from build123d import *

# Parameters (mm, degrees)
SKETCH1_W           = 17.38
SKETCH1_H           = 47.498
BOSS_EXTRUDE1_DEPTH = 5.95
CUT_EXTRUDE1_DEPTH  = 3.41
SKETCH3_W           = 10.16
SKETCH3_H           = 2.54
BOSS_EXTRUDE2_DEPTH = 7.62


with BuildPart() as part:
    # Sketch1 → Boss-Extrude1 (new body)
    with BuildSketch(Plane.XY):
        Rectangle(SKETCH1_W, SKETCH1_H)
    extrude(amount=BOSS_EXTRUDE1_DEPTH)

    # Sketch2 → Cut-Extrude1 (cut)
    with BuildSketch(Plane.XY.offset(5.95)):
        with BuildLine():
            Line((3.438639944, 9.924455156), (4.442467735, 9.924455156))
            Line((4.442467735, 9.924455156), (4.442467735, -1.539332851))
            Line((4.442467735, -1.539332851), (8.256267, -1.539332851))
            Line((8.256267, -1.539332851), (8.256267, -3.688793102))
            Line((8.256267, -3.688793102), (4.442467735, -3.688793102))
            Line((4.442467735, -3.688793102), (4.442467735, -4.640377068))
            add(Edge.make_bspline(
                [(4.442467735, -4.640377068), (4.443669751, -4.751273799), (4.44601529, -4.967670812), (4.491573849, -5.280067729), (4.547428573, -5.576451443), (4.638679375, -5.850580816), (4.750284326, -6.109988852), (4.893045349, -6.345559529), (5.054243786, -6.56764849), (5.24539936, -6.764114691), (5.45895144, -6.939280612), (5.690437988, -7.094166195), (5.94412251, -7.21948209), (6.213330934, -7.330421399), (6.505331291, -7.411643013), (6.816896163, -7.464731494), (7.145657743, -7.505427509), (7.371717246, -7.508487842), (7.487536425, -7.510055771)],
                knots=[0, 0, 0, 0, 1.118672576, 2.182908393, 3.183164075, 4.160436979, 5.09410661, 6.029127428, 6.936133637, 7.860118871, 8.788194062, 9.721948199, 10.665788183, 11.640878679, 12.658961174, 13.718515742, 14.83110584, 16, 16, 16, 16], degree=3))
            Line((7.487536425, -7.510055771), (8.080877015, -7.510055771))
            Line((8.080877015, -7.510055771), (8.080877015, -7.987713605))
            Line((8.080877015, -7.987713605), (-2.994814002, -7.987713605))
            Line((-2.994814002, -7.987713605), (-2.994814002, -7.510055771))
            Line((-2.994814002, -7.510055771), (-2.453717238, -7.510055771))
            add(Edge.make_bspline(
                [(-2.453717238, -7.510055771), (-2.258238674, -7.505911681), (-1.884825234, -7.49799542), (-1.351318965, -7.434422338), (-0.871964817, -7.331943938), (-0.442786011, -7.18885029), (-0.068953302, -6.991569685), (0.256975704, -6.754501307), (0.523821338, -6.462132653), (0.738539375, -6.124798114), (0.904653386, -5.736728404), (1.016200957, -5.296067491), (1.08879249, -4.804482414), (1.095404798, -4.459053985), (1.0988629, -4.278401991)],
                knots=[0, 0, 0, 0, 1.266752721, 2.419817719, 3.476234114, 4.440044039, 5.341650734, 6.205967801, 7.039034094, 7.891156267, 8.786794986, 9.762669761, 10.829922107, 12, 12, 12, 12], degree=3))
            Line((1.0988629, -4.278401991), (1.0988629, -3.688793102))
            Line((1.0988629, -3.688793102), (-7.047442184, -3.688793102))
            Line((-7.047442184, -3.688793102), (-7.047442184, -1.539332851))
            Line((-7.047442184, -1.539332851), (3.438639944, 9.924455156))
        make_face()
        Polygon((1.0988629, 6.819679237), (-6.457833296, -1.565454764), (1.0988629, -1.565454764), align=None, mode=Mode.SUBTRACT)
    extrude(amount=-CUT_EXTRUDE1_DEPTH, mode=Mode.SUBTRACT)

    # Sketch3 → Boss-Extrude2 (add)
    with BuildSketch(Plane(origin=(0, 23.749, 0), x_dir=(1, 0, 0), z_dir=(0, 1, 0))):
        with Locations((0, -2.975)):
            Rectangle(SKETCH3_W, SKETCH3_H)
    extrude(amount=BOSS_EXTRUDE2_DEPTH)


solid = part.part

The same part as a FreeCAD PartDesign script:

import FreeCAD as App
import Part
import Sketcher
from FreeCAD import Vector
Q = App.Units.Quantity

doc = App.newDocument("Part")
params = doc.addObject("Spreadsheet::Sheet", "Params")
for row, (alias, value) in enumerate([
    ("sketch1_height", "1.87 in"),
    ("pad1_length", "5.95 mm"),
    ("pocket1_length", "3.41 mm"),
    ("sketch3_width", "0.4 in"),
    ("sketch3_height", "0.1 in"),
    ("pad2_length", "0.3 in"),
], start=1):
    params.set(f"A{row}", alias)
    params.set(f"B{row}", "=" + value)
    params.setAlias(f"B{row}", alias)

body = doc.addObject("PartDesign::Body", "Body")

sketch1 = body.newObject("Sketcher::SketchObject", "Sketch")
sketch1.AttachmentSupport = (doc.getObject("XY_Plane"), [""])
sketch1.MapMode = "FlatFace"
sketch1.addGeometry(Part.LineSegment(Vector(-8.69, 23.749, 0), Vector(-8.69, -23.749, 0)), False)
sketch1.addGeometry(Part.LineSegment(Vector(-8.69, -23.749, 0), Vector(8.69, -23.749, 0)), False)
sketch1.addGeometry(Part.LineSegment(Vector(8.69, -23.749, 0), Vector(8.69, 23.749, 0)), False)
sketch1.addGeometry(Part.LineSegment(Vector(8.69, 23.749, 0), Vector(-8.69, 23.749, 0)), False)
sketch1.addConstraint(Sketcher.Constraint("Coincident", 0, 2, 1, 1))
sketch1.addConstraint(Sketcher.Constraint("Coincident", 1, 2, 2, 1))
sketch1.addConstraint(Sketcher.Constraint("Coincident", 2, 2, 3, 1))
sketch1.addConstraint(Sketcher.Constraint("Coincident", 3, 2, 0, 1))
sketch1.addConstraint(Sketcher.Constraint("Vertical", 0))
sketch1.addConstraint(Sketcher.Constraint("Horizontal", 1))
sketch1.addConstraint(Sketcher.Constraint("Vertical", 2))
sketch1.addConstraint(Sketcher.Constraint("Horizontal", 3))
sketch1.addConstraint(Sketcher.Constraint("Symmetric", 0, 2, 2, 2, -1, 1))
sketch1.addConstraint(Sketcher.Constraint("DistanceY", 0, 2, 0, 1, Q("1.87 in")))
sketch1.addConstraint(Sketcher.Constraint("DistanceX", 1, 1, 1, 2, Q("17.38 mm")))
sketch1.setExpression("Constraints[9]", "Params.sketch1_height")
pad1 = body.newObject("PartDesign::Pad", "Pad")
pad1.Profile = sketch1
pad1.setExpression("Length", "Params.pad1_length")

sketch2 = body.newObject("Sketcher::SketchObject", "Sketch001")
sketch2.AttachmentSupport = (doc.getObject("XY_Plane"), [""])
sketch2.MapMode = "FlatFace"
sketch2.AttachmentOffset = App.Placement(Vector(0, 0, 5.95), App.Rotation())
sketch2.addGeometry(Part.LineSegment(Vector(4.442468, 9.924455, 0), Vector(3.43864, 9.924455, 0)), False)
sketch2.addGeometry(Part.LineSegment(Vector(3.43864, 9.924455, 0), Vector(-7.047442, -1.539333, 0)), False)
sketch2.addGeometry(Part.LineSegment(Vector(-7.047442, -1.539333, 0), Vector(-7.047442, -3.688793, 0)), False)
sketch2.addGeometry(Part.LineSegment(Vector(-7.047442, -3.688793, 0), Vector(1.098863, -3.688793, 0)), False)
sketch2.addGeometry(Part.LineSegment(Vector(1.098863, -3.688793, 0), Vector(1.098863, -4.278402, 0)), False)
sketch2.addGeometry(Part.BSplineCurve([Vector(-2.453717, -7.510056, 0), Vector(-2.258239, -7.505912, 0), Vector(-1.884825, -7.497995, 0), Vector(-1.351319, -7.434422, 0), Vector(-0.871965, -7.331944, 0), Vector(-0.442786, -7.18885, 0), Vector(-0.068953, -6.99157, 0), Vector(0.256976, -6.754501, 0), Vector(0.523821, -6.462133, 0), Vector(0.738539, -6.124798, 0), Vector(0.904653, -5.736728, 0), Vector(1.016201, -5.296067, 0), Vector(1.088792, -4.804482, 0), Vector(1.095405, -4.459054, 0), Vector(1.098863, -4.278402, 0)], [4, 1, 1, 1, 1, 1, 1, 1, 1, 1, 1, 1, 4], [0, 1.266752721, 2.419817719, 3.476234114, 4.440044039, 5.341650734, 6.205967801, 7.039034094, 7.891156267, 8.786794986, 9.762669761, 10.829922107, 12], False, 3, [1, 1, 1, 1, 1, 1, 1, 1, 1, 1, 1, 1, 1, 1, 1], False), False)
sketch2.addGeometry(Part.LineSegment(Vector(-2.453717, -7.510056, 0), Vector(-2.994814, -7.510056, 0)), False)
sketch2.addGeometry(Part.LineSegment(Vector(-2.994814, -7.510056, 0), Vector(-2.994814, -7.987714, 0)), False)
sketch2.addGeometry(Part.LineSegment(Vector(-2.994814, -7.987714, 0), Vector(8.080877, -7.987714, 0)), False)
sketch2.addGeometry(Part.LineSegment(Vector(8.080877, -7.987714, 0), Vector(8.080877, -7.510056, 0)), False)
sketch2.addGeometry(Part.LineSegment(Vector(8.080877, -7.510056, 0), Vector(7.487536, -7.510056, 0)), False)
sketch2.addGeometry(Part.BSplineCurve([Vector(4.442468, -4.640377, 0), Vector(4.44367, -4.751274, 0), Vector(4.446015, -4.967671, 0), Vector(4.491574, -5.280068, 0), Vector(4.547429, -5.576451, 0), Vector(4.638679, -5.850581, 0), Vector(4.750284, -6.109989, 0), Vector(4.893045, -6.34556, 0), Vector(5.054244, -6.567648, 0), Vector(5.245399, -6.764115, 0), Vector(5.458951, -6.939281, 0), Vector(5.690438, -7.094166, 0), Vector(5.944123, -7.219482, 0), Vector(6.213331, -7.330421, 0), Vector(6.505331, -7.411643, 0), Vector(6.816896, -7.464731, 0), Vector(7.145658, -7.505428, 0), Vector(7.371717, -7.508488, 0), Vector(7.487536, -7.510056, 0)], [4, 1, 1, 1, 1, 1, 1, 1, 1, 1, 1, 1, 1, 1, 1, 1, 4], [0, 1.118672576, 2.182908393, 3.183164075, 4.160436979, 5.09410661, 6.029127428, 6.936133637, 7.860118871, 8.788194062, 9.721948199, 10.665788183, 11.640878679, 12.658961174, 13.718515742, 14.83110584, 16], False, 3, [1, 1, 1, 1, 1, 1, 1, 1, 1, 1, 1, 1, 1, 1, 1, 1, 1, 1, 1], False), False)
sketch2.addGeometry(Part.LineSegment(Vector(4.442468, -4.640377, 0), Vector(4.442468, -3.688793, 0)), False)
sketch2.addGeometry(Part.LineSegment(Vector(4.442468, -3.688793, 0), Vector(8.256267, -3.688793, 0)), False)
sketch2.addGeometry(Part.LineSegment(Vector(8.256267, -3.688793, 0), Vector(8.256267, -1.539333, 0)), False)
sketch2.addGeometry(Part.LineSegment(Vector(8.256267, -1.539333, 0), Vector(4.442468, -1.539333, 0)), False)
sketch2.addGeometry(Part.LineSegment(Vector(4.442468, -1.539333, 0), Vector(4.442468, 9.924455, 0)), False)
sketch2.addGeometry(Part.LineSegment(Vector(1.098863, 6.819679, 0), Vector(1.098863, -1.565455, 0)), False)
sketch2.addGeometry(Part.LineSegment(Vector(1.098863, -1.565455, 0), Vector(-6.457833, -1.565455, 0)), False)
sketch2.addGeometry(Part.LineSegment(Vector(-6.457833, -1.565455, 0), Vector(1.098863, 6.819679, 0)), False)
sketch2.addConstraint(Sketcher.Constraint("Block", 5))
sketch2.addConstraint(Sketcher.Constraint("Block", 11))
sketch2.addConstraint(Sketcher.Constraint("Coincident", 0, 2, 1, 1))
sketch2.addConstraint(Sketcher.Constraint("Coincident", 1, 2, 2, 1))
sketch2.addConstraint(Sketcher.Constraint("Coincident", 2, 2, 3, 1))
sketch2.addConstraint(Sketcher.Constraint("Coincident", 3, 2, 4, 1))
sketch2.addConstraint(Sketcher.Constraint("Coincident", 4, 2, 5, 2))
sketch2.addConstraint(Sketcher.Constraint("Coincident", 5, 1, 6, 1))
sketch2.addConstraint(Sketcher.Constraint("Coincident", 6, 2, 7, 1))
sketch2.addConstraint(Sketcher.Constraint("Coincident", 7, 2, 8, 1))
sketch2.addConstraint(Sketcher.Constraint("Coincident", 8, 2, 9, 1))
sketch2.addConstraint(Sketcher.Constraint("Coincident", 9, 2, 10, 1))
sketch2.addConstraint(Sketcher.Constraint("Coincident", 10, 2, 11, 2))
sketch2.addConstraint(Sketcher.Constraint("Coincident", 11, 1, 12, 1))
sketch2.addConstraint(Sketcher.Constraint("Coincident", 12, 2, 13, 1))
sketch2.addConstraint(Sketcher.Constraint("Coincident", 13, 2, 14, 1))
sketch2.addConstraint(Sketcher.Constraint("Coincident", 14, 2, 15, 1))
sketch2.addConstraint(Sketcher.Constraint("Coincident", 15, 2, 16, 1))
sketch2.addConstraint(Sketcher.Constraint("Coincident", 16, 2, 0, 1))
sketch2.addConstraint(Sketcher.Constraint("Coincident", 17, 2, 18, 1))
sketch2.addConstraint(Sketcher.Constraint("Coincident", 18, 2, 19, 1))
sketch2.addConstraint(Sketcher.Constraint("Coincident", 19, 2, 17, 1))
sketch2.addConstraint(Sketcher.Constraint("Horizontal", 0))
sketch2.addConstraint(Sketcher.Constraint("Vertical", 2))
sketch2.addConstraint(Sketcher.Constraint("Horizontal", 3))
sketch2.addConstraint(Sketcher.Constraint("Vertical", 4))
sketch2.addConstraint(Sketcher.Constraint("Horizontal", 6))
sketch2.addConstraint(Sketcher.Constraint("Vertical", 7))
sketch2.addConstraint(Sketcher.Constraint("Horizontal", 8))
sketch2.addConstraint(Sketcher.Constraint("Vertical", 9))
sketch2.addConstraint(Sketcher.Constraint("Horizontal", 10))
sketch2.addConstraint(Sketcher.Constraint("Vertical", 12))
sketch2.addConstraint(Sketcher.Constraint("Horizontal", 13))
sketch2.addConstraint(Sketcher.Constraint("Vertical", 14))
sketch2.addConstraint(Sketcher.Constraint("Horizontal", 15))
sketch2.addConstraint(Sketcher.Constraint("Vertical", 16))
sketch2.addConstraint(Sketcher.Constraint("Vertical", 17))
sketch2.addConstraint(Sketcher.Constraint("Horizontal", 18))
sketch2.addConstraint(Sketcher.Constraint("Horizontal", 3, 2, 12, 2))
sketch2.addConstraint(Sketcher.Constraint("Horizontal", 1, 2, 14, 2))
sketch2.addConstraint(Sketcher.Constraint("Vertical", 12, 2, 15, 2))
sketch2.addConstraint(Sketcher.Constraint("Vertical", 4, 2, 17, 2))
sketch2.addConstraint(Sketcher.Constraint("DistanceX", 13, 1, 13, 2, Q("3.813799 mm")))
sketch2.addConstraint(Sketcher.Constraint("DistanceX", 8, 1, 8, 2, Q("11.075691 mm")))
sketch2.addConstraint(Sketcher.Constraint("DistanceX", 10, 2, 10, 1, Q("0.593341 mm")))
sketch2.addConstraint(Sketcher.Constraint("DistanceY", 2, 2, 2, 1, Q("2.14946 mm")))
sketch2.addConstraint(Sketcher.Constraint("DistanceY", 4, 2, 4, 1, Q("0.589609 mm")))
sketch2.addConstraint(Sketcher.Constraint("DistanceY", 16, 1, 16, 2, Q("11.463788 mm")))
sketch2.addConstraint(Sketcher.Constraint("DistanceY", 6, 2, 18, 2, Q("5.944601 mm")))
sketch2.addConstraint(Sketcher.Constraint("Distance", 1, Q("15.536292 mm")))
sketch2.addConstraint(Sketcher.Constraint("DistanceX", 0, 2, 0, 1, Q("1.003828 mm")))
sketch2.addConstraint(Sketcher.Constraint("DistanceX", 18, 2, 18, 1, Q("7.556696 mm")))
sketch2.addConstraint(Sketcher.Constraint("DistanceY", 7, 2, 7, 1, Q("0.477658 mm")))
sketch2.addConstraint(Sketcher.Constraint("DistanceY", 17, 2, 17, 1, Q("8.385134 mm")))
pocket1 = body.newObject("PartDesign::Pocket", "Pocket")
pocket1.Profile = sketch2
pocket1.setExpression("Length", "Params.pocket1_length")

sketch3 = body.newObject("Sketcher::SketchObject", "Sketch002")
sketch3.AttachmentSupport = (doc.getObject("XZ_Plane"), [""])
sketch3.MapMode = "FlatFace"
sketch3.AttachmentOffset = App.Placement(Vector(0, 0, -0.935 * 25.4), App.Rotation())
sketch3.addGeometry(Part.LineSegment(Vector(-5.08, 1.705, 0), Vector(-5.08, 4.245, 0)), False)
sketch3.addGeometry(Part.LineSegment(Vector(-5.08, 4.245, 0), Vector(5.08, 4.245, 0)), False)
sketch3.addGeometry(Part.LineSegment(Vector(5.08, 4.245, 0), Vector(5.08, 1.705, 0)), False)
sketch3.addGeometry(Part.LineSegment(Vector(5.08, 1.705, 0), Vector(-5.08, 1.705, 0)), False)
sketch3.addConstraint(Sketcher.Constraint("Coincident", 0, 2, 1, 1))
sketch3.addConstraint(Sketcher.Constraint("Coincident", 1, 2, 2, 1))
sketch3.addConstraint(Sketcher.Constraint("Coincident", 2, 2, 3, 1))
sketch3.addConstraint(Sketcher.Constraint("Coincident", 3, 2, 0, 1))
sketch3.addConstraint(Sketcher.Constraint("Vertical", 0))
sketch3.addConstraint(Sketcher.Constraint("Horizontal", 1))
sketch3.addConstraint(Sketcher.Constraint("Vertical", 2))
sketch3.addConstraint(Sketcher.Constraint("Horizontal", 3))
sketch3.addConstraint(Sketcher.Constraint("DistanceX", 1, 1, 1, 2, Q("0.4 in")))
sketch3.addConstraint(Sketcher.Constraint("DistanceY", 0, 1, 0, 2, Q("0.1 in")))
sketch3.addConstraint(Sketcher.Constraint("DistanceX", 0, 2, -1, 1, Q("0.2 in")))
sketch3.addConstraint(Sketcher.Constraint("DistanceY", -1, 1, 0, 2, Q("4.245 mm")))
sketch3.setExpression("Constraints[8]", "Params.sketch3_width")
sketch3.setExpression("Constraints[9]", "Params.sketch3_height")
pad2 = body.newObject("PartDesign::Pad", "Pad001")
pad2.Profile = sketch3
pad2.setExpression("Length", "Params.pad2_length")
pad2.Reversed = True

doc.recompute()
